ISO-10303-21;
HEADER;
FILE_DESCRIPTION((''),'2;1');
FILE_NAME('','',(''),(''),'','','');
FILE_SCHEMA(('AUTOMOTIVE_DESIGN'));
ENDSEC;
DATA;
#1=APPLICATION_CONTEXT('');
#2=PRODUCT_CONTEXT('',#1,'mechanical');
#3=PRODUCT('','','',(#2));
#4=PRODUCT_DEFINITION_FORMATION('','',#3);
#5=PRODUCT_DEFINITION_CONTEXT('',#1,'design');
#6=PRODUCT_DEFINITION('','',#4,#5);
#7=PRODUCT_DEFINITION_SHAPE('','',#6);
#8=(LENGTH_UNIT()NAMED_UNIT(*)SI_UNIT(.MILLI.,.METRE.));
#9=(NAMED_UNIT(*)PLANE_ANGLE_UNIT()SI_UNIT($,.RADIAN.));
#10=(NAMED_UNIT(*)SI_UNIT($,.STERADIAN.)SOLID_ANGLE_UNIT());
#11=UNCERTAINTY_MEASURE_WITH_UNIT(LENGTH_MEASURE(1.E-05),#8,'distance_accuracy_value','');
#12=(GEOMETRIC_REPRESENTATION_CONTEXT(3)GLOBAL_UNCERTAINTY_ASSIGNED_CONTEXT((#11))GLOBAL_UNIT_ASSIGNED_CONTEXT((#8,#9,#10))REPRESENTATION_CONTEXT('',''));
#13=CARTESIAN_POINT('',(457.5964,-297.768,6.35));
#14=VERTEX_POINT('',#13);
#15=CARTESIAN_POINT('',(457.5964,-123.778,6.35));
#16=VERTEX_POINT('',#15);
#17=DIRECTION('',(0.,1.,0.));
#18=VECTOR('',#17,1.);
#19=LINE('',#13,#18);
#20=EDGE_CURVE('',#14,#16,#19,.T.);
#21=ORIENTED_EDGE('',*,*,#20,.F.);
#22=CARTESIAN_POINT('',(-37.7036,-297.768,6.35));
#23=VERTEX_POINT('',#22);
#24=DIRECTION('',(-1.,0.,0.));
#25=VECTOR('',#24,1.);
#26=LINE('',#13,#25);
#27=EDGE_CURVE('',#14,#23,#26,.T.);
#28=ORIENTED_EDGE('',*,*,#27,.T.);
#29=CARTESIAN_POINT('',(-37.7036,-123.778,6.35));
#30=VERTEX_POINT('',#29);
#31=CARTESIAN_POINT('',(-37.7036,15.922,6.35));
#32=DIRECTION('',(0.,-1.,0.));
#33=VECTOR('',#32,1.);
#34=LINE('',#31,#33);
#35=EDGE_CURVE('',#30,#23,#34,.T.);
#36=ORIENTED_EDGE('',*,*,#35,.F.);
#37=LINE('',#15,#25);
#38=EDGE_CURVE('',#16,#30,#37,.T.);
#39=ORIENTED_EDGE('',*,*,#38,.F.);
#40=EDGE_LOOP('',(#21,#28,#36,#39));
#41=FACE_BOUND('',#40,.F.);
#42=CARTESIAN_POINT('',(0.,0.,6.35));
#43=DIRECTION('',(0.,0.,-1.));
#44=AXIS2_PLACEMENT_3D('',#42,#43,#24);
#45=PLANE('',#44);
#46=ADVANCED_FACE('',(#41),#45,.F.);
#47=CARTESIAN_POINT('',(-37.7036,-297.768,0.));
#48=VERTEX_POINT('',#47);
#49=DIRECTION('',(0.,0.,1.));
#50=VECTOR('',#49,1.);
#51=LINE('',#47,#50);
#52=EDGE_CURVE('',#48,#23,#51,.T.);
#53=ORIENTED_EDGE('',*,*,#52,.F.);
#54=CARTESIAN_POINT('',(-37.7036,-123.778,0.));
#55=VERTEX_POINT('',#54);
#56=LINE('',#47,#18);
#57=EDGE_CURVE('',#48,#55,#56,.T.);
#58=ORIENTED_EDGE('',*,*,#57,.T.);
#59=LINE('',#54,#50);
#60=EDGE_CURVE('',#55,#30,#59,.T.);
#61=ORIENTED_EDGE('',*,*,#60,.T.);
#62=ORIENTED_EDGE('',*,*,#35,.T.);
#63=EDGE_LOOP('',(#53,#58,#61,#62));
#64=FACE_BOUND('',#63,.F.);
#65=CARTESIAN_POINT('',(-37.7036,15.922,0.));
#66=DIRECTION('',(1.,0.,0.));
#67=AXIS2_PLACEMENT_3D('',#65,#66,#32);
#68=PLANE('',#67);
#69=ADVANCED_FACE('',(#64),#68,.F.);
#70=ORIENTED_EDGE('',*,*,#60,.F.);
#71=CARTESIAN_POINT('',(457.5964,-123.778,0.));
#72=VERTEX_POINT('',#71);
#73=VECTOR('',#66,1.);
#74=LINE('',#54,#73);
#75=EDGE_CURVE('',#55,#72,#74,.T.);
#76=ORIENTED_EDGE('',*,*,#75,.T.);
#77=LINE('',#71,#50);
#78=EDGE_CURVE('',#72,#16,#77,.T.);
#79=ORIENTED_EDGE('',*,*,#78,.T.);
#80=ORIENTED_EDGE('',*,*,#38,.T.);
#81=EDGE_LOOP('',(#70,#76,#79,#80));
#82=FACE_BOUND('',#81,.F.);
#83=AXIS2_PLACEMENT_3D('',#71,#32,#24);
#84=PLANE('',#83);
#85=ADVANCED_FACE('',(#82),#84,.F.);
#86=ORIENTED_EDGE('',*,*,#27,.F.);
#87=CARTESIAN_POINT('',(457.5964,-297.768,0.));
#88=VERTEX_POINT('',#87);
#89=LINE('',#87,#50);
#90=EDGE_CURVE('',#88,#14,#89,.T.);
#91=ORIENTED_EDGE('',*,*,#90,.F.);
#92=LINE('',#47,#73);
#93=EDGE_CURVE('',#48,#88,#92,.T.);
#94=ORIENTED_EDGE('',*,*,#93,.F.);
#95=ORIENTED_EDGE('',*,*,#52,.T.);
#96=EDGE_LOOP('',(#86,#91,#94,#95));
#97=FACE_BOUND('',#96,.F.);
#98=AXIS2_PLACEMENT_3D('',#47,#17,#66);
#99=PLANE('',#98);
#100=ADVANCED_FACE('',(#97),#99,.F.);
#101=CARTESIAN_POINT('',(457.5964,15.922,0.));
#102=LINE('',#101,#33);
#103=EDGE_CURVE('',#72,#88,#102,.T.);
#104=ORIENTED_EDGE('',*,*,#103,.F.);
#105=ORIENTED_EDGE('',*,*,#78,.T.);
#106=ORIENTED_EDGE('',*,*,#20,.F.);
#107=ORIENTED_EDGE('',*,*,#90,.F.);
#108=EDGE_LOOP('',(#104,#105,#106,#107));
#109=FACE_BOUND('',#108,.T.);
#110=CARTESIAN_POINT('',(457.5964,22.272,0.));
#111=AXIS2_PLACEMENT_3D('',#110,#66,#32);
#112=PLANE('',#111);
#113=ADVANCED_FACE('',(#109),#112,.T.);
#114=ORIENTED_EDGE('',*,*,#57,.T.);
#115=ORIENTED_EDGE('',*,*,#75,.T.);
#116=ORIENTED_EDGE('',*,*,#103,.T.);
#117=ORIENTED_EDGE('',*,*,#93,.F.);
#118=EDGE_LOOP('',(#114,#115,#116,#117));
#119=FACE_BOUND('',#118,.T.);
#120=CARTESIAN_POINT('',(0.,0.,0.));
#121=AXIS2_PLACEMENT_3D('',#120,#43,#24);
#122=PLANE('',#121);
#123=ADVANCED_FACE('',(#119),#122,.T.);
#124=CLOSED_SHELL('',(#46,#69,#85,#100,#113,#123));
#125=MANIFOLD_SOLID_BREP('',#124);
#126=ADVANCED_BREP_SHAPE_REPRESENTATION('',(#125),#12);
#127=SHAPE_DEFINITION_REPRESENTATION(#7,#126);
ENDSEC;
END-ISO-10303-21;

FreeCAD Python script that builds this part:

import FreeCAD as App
import Part
import Sketcher
from FreeCAD import Vector
Q = App.Units.Quantity

doc = App.newDocument("Part")
body = doc.addObject("PartDesign::Body", "Body")

# Sketch on XY plane
sketch1 = doc.addObject("Sketcher::SketchObject", "Sketch")
body.addObject(sketch1)
sketch1.AttachmentSupport = (doc.XY_Plane, [""])
sketch1.MapMode = "FlatFace"
sketch1.addGeometry(Part.LineSegment(Vector(458, 22, 0), Vector(-38, 22, 0)), False)
sketch1.addGeometry(Part.LineSegment(Vector(-38, 22, 0), Vector(-38, -304, 0)), False)
sketch1.addGeometry(Part.LineSegment(Vector(-38, -304, 0), Vector(458, -304, 0)), False)
sketch1.addGeometry(Part.LineSegment(Vector(458, -304, 0), Vector(458, 22, 0)), False)
sketch1.addConstraint(Sketcher.Constraint("Coincident", 0, 2, 1, 1))
sketch1.addConstraint(Sketcher.Constraint("Coincident", 1, 2, 2, 1))
sketch1.addConstraint(Sketcher.Constraint("Coincident", 2, 2, 3, 1))
sketch1.addConstraint(Sketcher.Constraint("Coincident", 3, 2, 0, 1))
sketch1.addConstraint(Sketcher.Constraint("Horizontal", 0))
sketch1.addConstraint(Sketcher.Constraint("Vertical", 1))
sketch1.addConstraint(Sketcher.Constraint("Horizontal", 2))
sketch1.addConstraint(Sketcher.Constraint("Vertical", 3))
sketch1.addConstraint(Sketcher.Constraint("DistanceX", 0, 2, 0, 1, Q("19.5 in")))
sketch1.addConstraint(Sketcher.Constraint("DistanceY", 1, 2, 1, 1, Q("12.85 in")))
sketch1.addConstraint(Sketcher.Constraint("DistanceX", 0, 2, -1, 1, Q("1.4844 in")))
sketch1.addConstraint(Sketcher.Constraint("DistanceY", -1, 1, 0, 2, Q("22.272 mm")))
pad1 = doc.addObject("PartDesign::Pad", "Pad")
body.addObject(pad1)
pad1.Profile = sketch1
pad1.Length = Q("0.25 in")

# Sketch on XY plane
sketch2 = doc.addObject("Sketcher::SketchObject", "Sketch001")
body.addObject(sketch2)
sketch2.AttachmentSupport = (doc.XY_Plane, [""])
sketch2.MapMode = "FlatFace"
sketch2.AttachmentOffset = App.Placement(Vector(0, 0, 0.25 * 25.4), App.Rotation())
sketch2.addGeometry(Part.LineSegment(Vector(-19, 22, 0), Vector(-38, 22, 0)), False)
sketch2.addGeometry(Part.LineSegment(Vector(-38, 22, 0), Vector(-38, 16, 0)), False)
sketch2.addGeometry(Part.LineSegment(Vector(-38, 16, 0), Vector(-19, 16, 0)), False)
sketch2.addGeometry(Part.LineSegment(Vector(-19, 16, 0), Vector(-19, 22, 0)), False)
sketch2.addGeometry(Part.LineSegment(Vector(83, 22, 0), Vector(32, 22, 0)), False)
sketch2.addGeometry(Part.LineSegment(Vector(32, 22, 0), Vector(32, 16, 0)), False)
sketch2.addGeometry(Part.LineSegment(Vector(32, 16, 0), Vector(83, 16, 0)), False)
sketch2.addGeometry(Part.LineSegment(Vector(83, 16, 0), Vector(83, 22, 0)), False)
sketch2.addGeometry(Part.LineSegment(Vector(185, 22, 0), Vector(134, 22, 0)), False)
sketch2.addGeometry(Part.LineSegment(Vector(134, 22, 0), Vector(134, 16, 0)), False)
sketch2.addGeometry(Part.LineSegment(Vector(134, 16, 0), Vector(185, 16, 0)), False)
sketch2.addGeometry(Part.LineSegment(Vector(185, 16, 0), Vector(185, 22, 0)), False)
sketch2.addGeometry(Part.LineSegment(Vector(286, 22, 0), Vector(235, 22, 0)), False)
sketch2.addGeometry(Part.LineSegment(Vector(235, 22, 0), Vector(235, 16, 0)), False)
sketch2.addGeometry(Part.LineSegment(Vector(235, 16, 0), Vector(286, 16, 0)), False)
sketch2.addGeometry(Part.LineSegment(Vector(286, 16, 0), Vector(286, 22, 0)), False)
sketch2.addGeometry(Part.LineSegment(Vector(388, 22, 0), Vector(337, 22, 0)), False)
sketch2.addGeometry(Part.LineSegment(Vector(337, 22, 0), Vector(337, 16, 0)), False)
sketch2.addGeometry(Part.LineSegment(Vector(337, 16, 0), Vector(388, 16, 0)), False)
sketch2.addGeometry(Part.LineSegment(Vector(388, 16, 0), Vector(388, 22, 0)), False)
sketch2.addGeometry(Part.LineSegment(Vector(458, 22, 0), Vector(439, 22, 0)), False)
sketch2.addGeometry(Part.LineSegment(Vector(439, 22, 0), Vector(439, 16, 0)), False)
sketch2.addGeometry(Part.LineSegment(Vector(439, 16, 0), Vector(458, 16, 0)), False)
sketch2.addGeometry(Part.LineSegment(Vector(458, 16, 0), Vector(458, 22, 0)), False)
sketch2.addConstraint(Sketcher.Constraint("Coincident", 0, 2, 1, 1))
sketch2.addConstraint(Sketcher.Constraint("Coincident", 1, 2, 2, 1))
sketch2.addConstraint(Sketcher.Constraint("Coincident", 2, 2, 3, 1))
sketch2.addConstraint(Sketcher.Constraint("Coincident", 3, 2, 0, 1))
sketch2.addConstraint(Sketcher.Constraint("Coincident", 4, 2, 5, 1))
sketch2.addConstraint(Sketcher.Constraint("Coincident", 5, 2, 6, 1))
sketch2.addConstraint(Sketcher.Constraint("Coincident", 6, 2, 7, 1))
sketch2.addConstraint(Sketcher.Constraint("Coincident", 7, 2, 4, 1))
sketch2.addConstraint(Sketcher.Constraint("Coincident", 8, 2, 9, 1))
sketch2.addConstraint(Sketcher.Constraint("Coincident", 9, 2, 10, 1))
sketch2.addConstraint(Sketcher.Constraint("Coincident", 10, 2, 11, 1))
sketch2.addConstraint(Sketcher.Constraint("Coincident", 11, 2, 8, 1))
sketch2.addConstraint(Sketcher.Constraint("Coincident", 12, 2, 13, 1))
sketch2.addConstraint(Sketcher.Constraint("Coincident", 13, 2, 14, 1))
sketch2.addConstraint(Sketcher.Constraint("Coincident", 14, 2, 15, 1))
sketch2.addConstraint(Sketcher.Constraint("Coincident", 15, 2, 12, 1))
sketch2.addConstraint(Sketcher.Constraint("Coincident", 16, 2, 17, 1))
sketch2.addConstraint(Sketcher.Constraint("Coincident", 17, 2, 18, 1))
sketch2.addConstraint(Sketcher.Constraint("Coincident", 18, 2, 19, 1))
sketch2.addConstraint(Sketcher.Constraint("Coincident", 19, 2, 16, 1))
sketch2.addConstraint(Sketcher.Constraint("Coincident", 20, 2, 21, 1))
sketch2.addConstraint(Sketcher.Constraint("Coincident", 21, 2, 22, 1))
sketch2.addConstraint(Sketcher.Constraint("Coincident", 22, 2, 23, 1))
sketch2.addConstraint(Sketcher.Constraint("Coincident", 23, 2, 20, 1))
sketch2.addConstraint(Sketcher.Constraint("Horizontal", 0))
sketch2.addConstraint(Sketcher.Constraint("Vertical", 1))
sketch2.addConstraint(Sketcher.Constraint("Horizontal", 2))
sketch2.addConstraint(Sketcher.Constraint("Vertical", 3))
sketch2.addConstraint(Sketcher.Constraint("Horizontal", 4))
sketch2.addConstraint(Sketcher.Constraint("Vertical", 5))
sketch2.addConstraint(Sketcher.Constraint("Horizontal", 6))
sketch2.addConstraint(Sketcher.Constraint("Vertical", 7))
sketch2.addConstraint(Sketcher.Constraint("Horizontal", 8))
sketch2.addConstraint(Sketcher.Constraint("Vertical", 9))
sketch2.addConstraint(Sketcher.Constraint("Horizontal", 10))
sketch2.addConstraint(Sketcher.Constraint("Vertical", 11))
sketch2.addConstraint(Sketcher.Constraint("Horizontal", 12))
sketch2.addConstraint(Sketcher.Constraint("Vertical", 13))
sketch2.addConstraint(Sketcher.Constraint("Horizontal", 14))
sketch2.addConstraint(Sketcher.Constraint("Vertical", 15))
sketch2.addConstraint(Sketcher.Constraint("Horizontal", 16))
sketch2.addConstraint(Sketcher.Constraint("Vertical", 17))
sketch2.addConstraint(Sketcher.Constraint("Horizontal", 18))
sketch2.addConstraint(Sketcher.Constraint("Vertical", 19))
sketch2.addConstraint(Sketcher.Constraint("Horizontal", 20))
sketch2.addConstraint(Sketcher.Constraint("Vertical", 21))
sketch2.addConstraint(Sketcher.Constraint("Horizontal", 22))
sketch2.addConstraint(Sketcher.Constraint("Vertical", 23))
sketch2.addConstraint(Sketcher.Constraint("Horizontal", 3, 2, 4, 2))
sketch2.addConstraint(Sketcher.Constraint("Horizontal", 2, 2, 5, 2))
sketch2.addConstraint(Sketcher.Constraint("Horizontal", 7, 2, 8, 2))
sketch2.addConstraint(Sketcher.Constraint("Horizontal", 6, 2, 9, 2))
sketch2.addConstraint(Sketcher.Constraint("Horizontal", 11, 2, 12, 2))
sketch2.addConstraint(Sketcher.Constraint("Horizontal", 10, 2, 13, 2))
sketch2.addConstraint(Sketcher.Constraint("Horizontal", 15, 2, 16, 2))
sketch2.addConstraint(Sketcher.Constraint("Horizontal", 14, 2, 17, 2))
sketch2.addConstraint(Sketcher.Constraint("Horizontal", 19, 2, 20, 2))
sketch2.addConstraint(Sketcher.Constraint("Horizontal", 18, 2, 21, 2))
sketch2.addConstraint(Sketcher.Constraint("Equal", 6, 8))
sketch2.addConstraint(Sketcher.Constraint("Equal", 10, 12))
sketch2.addConstraint(Sketcher.Constraint("Equal", 14, 16))
sketch2.addConstraint(Sketcher.Constraint("Equal", 2, 20))
sketch2.addConstraint(Sketcher.Constraint("DistanceX", 4, 2, 4, 1, Q("2 in")))
sketch2.addConstraint(Sketcher.Constraint("DistanceX", 3, 2, 4, 2, Q("2 in")))
sketch2.addConstraint(Sketcher.Constraint("DistanceX", 7, 2, 8, 2, Q("2 in")))
sketch2.addConstraint(Sketcher.Constraint("DistanceX", 11, 2, 12, 2, Q("2 in")))
sketch2.addConstraint(Sketcher.Constraint("DistanceX", 15, 2, 16, 2, Q("2 in")))
sketch2.addConstraint(Sketcher.Constraint("DistanceX", 19, 2, 20, 2, Q("2 in")))
sketch2.addConstraint(Sketcher.Constraint("DistanceX", 0, 2, 0, 1, Q("0.75 in")))
sketch2.addConstraint(Sketcher.Constraint("DistanceY", 1, 2, 1, 1, Q("0.25 in")))
sketch2.addConstraint(Sketcher.Constraint("DistanceX", 0, 2, -1, 1, Q("1.4844 in")))
sketch2.addConstraint(Sketcher.Constraint("DistanceY", -1, 1, 0, 2, Q("22.272 mm")))
pocket1 = doc.addObject("PartDesign::Pocket", "Pocket")
body.addObject(pocket1)
pocket1.Profile = sketch2
pocket1.Length = Q("0.25 in")

# Sketch on XY plane
sketch3 = doc.addObject("Sketcher::SketchObject", "Sketch002")
body.addObject(sketch3)
sketch3.AttachmentSupport = (doc.XY_Plane, [""])
sketch3.MapMode = "FlatFace"
sketch3.AttachmentOffset = App.Placement(Vector(0, 0, 0.25 * 25.4), App.Rotation())
sketch3.addGeometry(Part.LineSegment(Vector(439, -304, 0), Vector(458, -304, 0)), False)
sketch3.addGeometry(Part.LineSegment(Vector(458, -304, 0), Vector(458, -298, 0)), False)
sketch3.addGeometry(Part.LineSegment(Vector(458, -298, 0), Vector(439, -298, 0)), False)
sketch3.addGeometry(Part.LineSegment(Vector(439, -298, 0), Vector(439, -304, 0)), False)
sketch3.addGeometry(Part.LineSegment(Vector(337, -304, 0), Vector(388, -304, 0)), False)
sketch3.addGeometry(Part.LineSegment(Vector(388, -304, 0), Vector(388, -298, 0)), False)
sketch3.addGeometry(Part.LineSegment(Vector(388, -298, 0), Vector(337, -298, 0)), False)
sketch3.addGeometry(Part.LineSegment(Vector(337, -298, 0), Vector(337, -304, 0)), False)
sketch3.addGeometry(Part.LineSegment(Vector(134, -304, 0), Vector(185, -304, 0)), False)
sketch3.addGeometry(Part.LineSegment(Vector(185, -304, 0), Vector(185, -298, 0)), False)
sketch3.addGeometry(Part.LineSegment(Vector(185, -298, 0), Vector(134, -298, 0)), False)
sketch3.addGeometry(Part.LineSegment(Vector(134, -298, 0), Vector(134, -304, 0)), False)
sketch3.addGeometry(Part.LineSegment(Vector(32, -304, 0), Vector(83, -304, 0)), False)
sketch3.addGeometry(Part.LineSegment(Vector(83, -304, 0), Vector(83, -298, 0)), False)
sketch3.addGeometry(Part.LineSegment(Vector(83, -298, 0), Vector(32, -298, 0)), False)
sketch3.addGeometry(Part.LineSegment(Vector(32, -298, 0), Vector(32, -304, 0)), False)
sketch3.addGeometry(Part.LineSegment(Vector(-38, -304, 0), Vector(-19, -304, 0)), False)
sketch3.addGeometry(Part.LineSegment(Vector(-19, -304, 0), Vector(-19, -298, 0)), False)
sketch3.addGeometry(Part.LineSegment(Vector(-19, -298, 0), Vector(-38, -298, 0)), False)
sketch3.addGeometry(Part.LineSegment(Vector(-38, -298, 0), Vector(-38, -304, 0)), False)
sketch3.addConstraint(Sketcher.Constraint("Coincident", 0, 2, 1, 1))
sketch3.addConstraint(Sketcher.Constraint("Coincident", 1, 2, 2, 1))
sketch3.addConstraint(Sketcher.Constraint("Coincident", 2, 2, 3, 1))
sketch3.addConstraint(Sketcher.Constraint("Coincident", 3, 2, 0, 1))
sketch3.addConstraint(Sketcher.Constraint("Coincident", 4, 2, 5, 1))
sketch3.addConstraint(Sketcher.Constraint("Coincident", 5, 2, 6, 1))
sketch3.addConstraint(Sketcher.Constraint("Coincident", 6, 2, 7, 1))
sketch3.addConstraint(Sketcher.Constraint("Coincident", 7, 2, 4, 1))
sketch3.addConstraint(Sketcher.Constraint("Coincident", 8, 2, 9, 1))
sketch3.addConstraint(Sketcher.Constraint("Coincident", 9, 2, 10, 1))
sketch3.addConstraint(Sketcher.Constraint("Coincident", 10, 2, 11, 1))
sketch3.addConstraint(Sketcher.Constraint("Coincident", 11, 2, 8, 1))
sketch3.addConstraint(Sketcher.Constraint("Coincident", 12, 2, 13, 1))
sketch3.addConstraint(Sketcher.Constraint("Coincident", 13, 2, 14, 1))
sketch3.addConstraint(Sketcher.Constraint("Coincident", 14, 2, 15, 1))
sketch3.addConstraint(Sketcher.Constraint("Coincident", 15, 2, 12, 1))
sketch3.addConstraint(Sketcher.Constraint("Coincident", 16, 2, 17, 1))
sketch3.addConstraint(Sketcher.Constraint("Coincident", 17, 2, 18, 1))
sketch3.addConstraint(Sketcher.Constraint("Coincident", 18, 2, 19, 1))
sketch3.addConstraint(Sketcher.Constraint("Coincident", 19, 2, 16, 1))
sketch3.addConstraint(Sketcher.Constraint("Horizontal", 0))
sketch3.addConstraint(Sketcher.Constraint("Vertical", 1))
sketch3.addConstraint(Sketcher.Constraint("Horizontal", 2))
sketch3.addConstraint(Sketcher.Constraint("Vertical", 3))
sketch3.addConstraint(Sketcher.Constraint("Horizontal", 4))
sketch3.addConstraint(Sketcher.Constraint("Vertical", 5))
sketch3.addConstraint(Sketcher.Constraint("Horizontal", 6))
sketch3.addConstraint(Sketcher.Constraint("Vertical", 7))
sketch3.addConstraint(Sketcher.Constraint("Horizontal", 8))
sketch3.addConstraint(Sketcher.Constraint("Vertical", 9))
sketch3.addConstraint(Sketcher.Constraint("Horizontal", 10))
sketch3.addConstraint(Sketcher.Constraint("Vertical", 11))
sketch3.addConstraint(Sketcher.Constraint("Horizontal", 12))
sketch3.addConstraint(Sketcher.Constraint("Vertical", 13))
sketch3.addConstraint(Sketcher.Constraint("Horizontal", 14))
sketch3.addConstraint(Sketcher.Constraint("Vertical", 15))
sketch3.addConstraint(Sketcher.Constraint("Horizontal", 16))
sketch3.addConstraint(Sketcher.Constraint("Vertical", 17))
sketch3.addConstraint(Sketcher.Constraint("Horizontal", 18))
sketch3.addConstraint(Sketcher.Constraint("Vertical", 19))
sketch3.addConstraint(Sketcher.Constraint("Horizontal", 3, 2, 4, 2))
sketch3.addConstraint(Sketcher.Constraint("Horizontal", 2, 2, 5, 2))
sketch3.addConstraint(Sketcher.Constraint("Horizontal", 7, 2, 8, 2))
sketch3.addConstraint(Sketcher.Constraint("Horizontal", 6, 2, 9, 2))
sketch3.addConstraint(Sketcher.Constraint("Horizontal", 11, 2, 12, 2))
sketch3.addConstraint(Sketcher.Constraint("Horizontal", 10, 2, 13, 2))
sketch3.addConstraint(Sketcher.Constraint("Horizontal", 15, 2, 16, 2))
sketch3.addConstraint(Sketcher.Constraint("Horizontal", 14, 2, 17, 2))
sketch3.addConstraint(Sketcher.Constraint("Equal", 6, 8))
sketch3.addConstraint(Sketcher.Constraint("Equal", 10, 12))
sketch3.addConstraint(Sketcher.Constraint("Equal", 2, 16))
sketch3.addConstraint(Sketcher.Constraint("DistanceX", 0, 1, 0, 2, Q("0.75 in")))
sketch3.addConstraint(Sketcher.Constraint("DistanceY", 1, 1, 1, 2, Q("0.25 in")))
sketch3.addConstraint(Sketcher.Constraint("DistanceX", 4, 1, 4, 2, Q("2 in")))
sketch3.addConstraint(Sketcher.Constraint("DistanceX", 4, 2, 3, 2, Q("2 in")))
sketch3.addConstraint(Sketcher.Constraint("DistanceX", 8, 2, 7, 2, Q("6 in")))
sketch3.addConstraint(Sketcher.Constraint("DistanceX", 12, 2, 11, 2, Q("2 in")))
sketch3.addConstraint(Sketcher.Constraint("DistanceX", 16, 2, 15, 2, Q("2 in")))
sketch3.addConstraint(Sketcher.Constraint("DistanceX", -1, 1, 0, 2, Q("18.0156 in")))
sketch3.addConstraint(Sketcher.Constraint("DistanceY", 0, 2, -1, 1, Q("304.118 mm")))
pocket2 = doc.addObject("PartDesign::Pocket", "Pocket001")
body.addObject(pocket2)
pocket2.Profile = sketch3
pocket2.Length = Q("0.25 in")

# Sketch on XY plane
sketch4 = doc.addObject("Sketcher::SketchObject", "Sketch003")
body.addObject(sketch4)
sketch4.AttachmentSupport = (doc.XY_Plane, [""])
sketch4.MapMode = "FlatFace"
sketch4.AttachmentOffset = App.Placement(Vector(0, 0, 0.25 * 25.4), App.Rotation())
sketch4.addGeometry(Part.LineSegment(Vector(235, -304, 0), Vector(286, -304, 0)), False)
sketch4.addGeometry(Part.LineSegment(Vector(286, -304, 0), Vector(286, -298, 0)), False)
sketch4.addGeometry(Part.LineSegment(Vector(286, -298, 0), Vector(235, -298, 0)), False)
sketch4.addGeometry(Part.LineSegment(Vector(235, -298, 0), Vector(235, -304, 0)), False)
sketch4.addConstraint(Sketcher.Constraint("Coincident", 0, 2, 1, 1))
sketch4.addConstraint(Sketcher.Constraint("Coincident", 1, 2, 2, 1))
sketch4.addConstraint(Sketcher.Constraint("Coincident", 2, 2, 3, 1))
sketch4.addConstraint(Sketcher.Constraint("Coincident", 3, 2, 0, 1))
sketch4.addConstraint(Sketcher.Constraint("Horizontal", 0))
sketch4.addConstraint(Sketcher.Constraint("Vertical", 1))
sketch4.addConstraint(Sketcher.Constraint("Horizontal", 2))
sketch4.addConstraint(Sketcher.Constraint("Vertical", 3))
sketch4.addConstraint(Sketcher.Constraint("DistanceX", 0, 1, 0, 2, Q("2 in")))
sketch4.addConstraint(Sketcher.Constraint("DistanceY", 1, 1, 1, 2, Q("0.25 in")))
sketch4.addConstraint(Sketcher.Constraint("DistanceX", -1, 1, 0, 2, Q("11.2656 in")))
sketch4.addConstraint(Sketcher.Constraint("DistanceY", 0, 2, -1, 1, Q("304.118 mm")))
pocket3 = doc.addObject("PartDesign::Pocket", "Pocket002")
body.addObject(pocket3)
pocket3.Profile = sketch4
pocket3.Length = Q("0.25 in")

# Sketch on XY plane
sketch5 = doc.addObject("Sketcher::SketchObject", "Sketch004")
body.addObject(sketch5)
sketch5.AttachmentSupport = (doc.XY_Plane, [""])
sketch5.MapMode = "FlatFace"
sketch5.AttachmentOffset = App.Placement(Vector(0, 0, 0.25 * 25.4), App.Rotation())
sketch5.addGeometry(Part.LineSegment(Vector(458, -14, 0), Vector(458, 16, 0)), False)
sketch5.addGeometry(Part.LineSegment(Vector(458, 16, 0), Vector(451, 16, 0)), False)
sketch5.addGeometry(Part.LineSegment(Vector(451, 16, 0), Vector(451, -14, 0)), False)
sketch5.addGeometry(Part.LineSegment(Vector(451, -14, 0), Vector(458, -14, 0)), False)
sketch5.addGeometry(Part.LineSegment(Vector(458, -217, 0), Vector(458, -166, 0)), False)
sketch5.addGeometry(Part.LineSegment(Vector(458, -166, 0), Vector(451, -166, 0)), False)
sketch5.addGeometry(Part.LineSegment(Vector(451, -166, 0), Vector(451, -217, 0)), False)
sketch5.addGeometry(Part.LineSegment(Vector(451, -217, 0), Vector(458, -217, 0)), False)
sketch5.addGeometry(Part.LineSegment(Vector(458, -298, 0), Vector(458, -268, 0)), False)
sketch5.addGeometry(Part.LineSegment(Vector(458, -268, 0), Vector(451, -268, 0)), False)
sketch5.addGeometry(Part.LineSegment(Vector(451, -268, 0), Vector(451, -298, 0)), False)
sketch5.addGeometry(Part.LineSegment(Vector(451, -298, 0), Vector(458, -298, 0)), False)
sketch5.addGeometry(Part.LineSegment(Vector(-38, 16, 0), Vector(-38, -14, 0)), False)
sketch5.addGeometry(Part.LineSegment(Vector(-38, -14, 0), Vector(-31, -14, 0)), False)
sketch5.addGeometry(Part.LineSegment(Vector(-31, -14, 0), Vector(-31, 16, 0)), False)
sketch5.addGeometry(Part.LineSegment(Vector(-31, 16, 0), Vector(-38, 16, 0)), False)
sketch5.addGeometry(Part.LineSegment(Vector(-38, -65, 0), Vector(-38, -116, 0)), False)
sketch5.addGeometry(Part.LineSegment(Vector(-38, -116, 0), Vector(-31, -116, 0)), False)
sketch5.addGeometry(Part.LineSegment(Vector(-31, -116, 0), Vector(-31, -65, 0)), False)
sketch5.addGeometry(Part.LineSegment(Vector(-31, -65, 0), Vector(-38, -65, 0)), False)
sketch5.addGeometry(Part.LineSegment(Vector(-38, -166, 0), Vector(-38, -217, 0)), False)
sketch5.addGeometry(Part.LineSegment(Vector(-38, -217, 0), Vector(-31, -217, 0)), False)
sketch5.addGeometry(Part.LineSegment(Vector(-31, -217, 0), Vector(-31, -166, 0)), False)
sketch5.addGeometry(Part.LineSegment(Vector(-31, -166, 0), Vector(-38, -166, 0)), False)
sketch5.addGeometry(Part.LineSegment(Vector(-38, -268, 0), Vector(-38, -298, 0)), False)
sketch5.addGeometry(Part.LineSegment(Vector(-38, -298, 0), Vector(-31, -298, 0)), False)
sketch5.addGeometry(Part.LineSegment(Vector(-31, -298, 0), Vector(-31, -268, 0)), False)
sketch5.addGeometry(Part.LineSegment(Vector(-31, -268, 0), Vector(-38, -268, 0)), False)
sketch5.addConstraint(Sketcher.Constraint("Coincident", 0, 2, 1, 1))
sketch5.addConstraint(Sketcher.Constraint("Coincident", 1, 2, 2, 1))
sketch5.addConstraint(Sketcher.Constraint("Coincident", 2, 2, 3, 1))
sketch5.addConstraint(Sketcher.Constraint("Coincident", 3, 2, 0, 1))
sketch5.addConstraint(Sketcher.Constraint("Coincident", 4, 2, 5, 1))
sketch5.addConstraint(Sketcher.Constraint("Coincident", 5, 2, 6, 1))
sketch5.addConstraint(Sketcher.Constraint("Coincident", 6, 2, 7, 1))
sketch5.addConstraint(Sketcher.Constraint("Coincident", 7, 2, 4, 1))
sketch5.addConstraint(Sketcher.Constraint("Coincident", 8, 2, 9, 1))
sketch5.addConstraint(Sketcher.Constraint("Coincident", 9, 2, 10, 1))
sketch5.addConstraint(Sketcher.Constraint("Coincident", 10, 2, 11, 1))
sketch5.addConstraint(Sketcher.Constraint("Coincident", 11, 2, 8, 1))
sketch5.addConstraint(Sketcher.Constraint("Coincident", 12, 2, 13, 1))
sketch5.addConstraint(Sketcher.Constraint("Coincident", 13, 2, 14, 1))
sketch5.addConstraint(Sketcher.Constraint("Coincident", 14, 2, 15, 1))
sketch5.addConstraint(Sketcher.Constraint("Coincident", 15, 2, 12, 1))
sketch5.addConstraint(Sketcher.Constraint("Coincident", 16, 2, 17, 1))
sketch5.addConstraint(Sketcher.Constraint("Coincident", 17, 2, 18, 1))
sketch5.addConstraint(Sketcher.Constraint("Coincident", 18, 2, 19, 1))
sketch5.addConstraint(Sketcher.Constraint("Coincident", 19, 2, 16, 1))
sketch5.addConstraint(Sketcher.Constraint("Coincident", 20, 2, 21, 1))
sketch5.addConstraint(Sketcher.Constraint("Coincident", 21, 2, 22, 1))
sketch5.addConstraint(Sketcher.Constraint("Coincident", 22, 2, 23, 1))
sketch5.addConstraint(Sketcher.Constraint("Coincident", 23, 2, 20, 1))
sketch5.addConstraint(Sketcher.Constraint("Coincident", 24, 2, 25, 1))
sketch5.addConstraint(Sketcher.Constraint("Coincident", 25, 2, 26, 1))
sketch5.addConstraint(Sketcher.Constraint("Coincident", 26, 2, 27, 1))
sketch5.addConstraint(Sketcher.Constraint("Coincident", 27, 2, 24, 1))
sketch5.addConstraint(Sketcher.Constraint("Vertical", 0))
sketch5.addConstraint(Sketcher.Constraint("Horizontal", 1))
sketch5.addConstraint(Sketcher.Constraint("Vertical", 2))
sketch5.addConstraint(Sketcher.Constraint("Horizontal", 3))
sketch5.addConstraint(Sketcher.Constraint("Vertical", 4))
sketch5.addConstraint(Sketcher.Constraint("Horizontal", 5))
sketch5.addConstraint(Sketcher.Constraint("Vertical", 6))
sketch5.addConstraint(Sketcher.Constraint("Horizontal", 7))
sketch5.addConstraint(Sketcher.Constraint("Vertical", 8))
sketch5.addConstraint(Sketcher.Constraint("Horizontal", 9))
sketch5.addConstraint(Sketcher.Constraint("Vertical", 10))
sketch5.addConstraint(Sketcher.Constraint("Horizontal", 11))
sketch5.addConstraint(Sketcher.Constraint("Vertical", 12))
sketch5.addConstraint(Sketcher.Constraint("Horizontal", 13))
sketch5.addConstraint(Sketcher.Constraint("Vertical", 14))
sketch5.addConstraint(Sketcher.Constraint("Horizontal", 15))
sketch5.addConstraint(Sketcher.Constraint("Vertical", 16))
sketch5.addConstraint(Sketcher.Constraint("Horizontal", 17))
sketch5.addConstraint(Sketcher.Constraint("Vertical", 18))
sketch5.addConstraint(Sketcher.Constraint("Horizontal", 19))
sketch5.addConstraint(Sketcher.Constraint("Vertical", 20))
sketch5.addConstraint(Sketcher.Constraint("Horizontal", 21))
sketch5.addConstraint(Sketcher.Constraint("Vertical", 22))
sketch5.addConstraint(Sketcher.Constraint("Horizontal", 23))
sketch5.addConstraint(Sketcher.Constraint("Vertical", 24))
sketch5.addConstraint(Sketcher.Constraint("Horizontal", 25))
sketch5.addConstraint(Sketcher.Constraint("Vertical", 26))
sketch5.addConstraint(Sketcher.Constraint("Horizontal", 27))
sketch5.addConstraint(Sketcher.Constraint("Horizontal", 3, 2, 12, 2))
sketch5.addConstraint(Sketcher.Constraint("Horizontal", 1, 2, 14, 2))
sketch5.addConstraint(Sketcher.Constraint("Horizontal", 7, 2, 20, 2))
sketch5.addConstraint(Sketcher.Constraint("Horizontal", 5, 2, 22, 2))
sketch5.addConstraint(Sketcher.Constraint("Horizontal", 11, 2, 24, 2))
sketch5.addConstraint(Sketcher.Constraint("Horizontal", 9, 2, 26, 2))
sketch5.addConstraint(Sketcher.Constraint("Vertical", 3, 2, 4, 2))
sketch5.addConstraint(Sketcher.Constraint("Vertical", 2, 2, 5, 2))
sketch5.addConstraint(Sketcher.Constraint("Vertical", 7, 2, 8, 2))
sketch5.addConstraint(Sketcher.Constraint("Vertical", 6, 2, 9, 2))
sketch5.addConstraint(Sketcher.Constraint("Vertical", 15, 2, 16, 2))
sketch5.addConstraint(Sketcher.Constraint("Vertical", 14, 2, 17, 2))
sketch5.addConstraint(Sketcher.Constraint("Vertical", 19, 2, 20, 2))
sketch5.addConstraint(Sketcher.Constraint("Vertical", 18, 2, 21, 2))
sketch5.addConstraint(Sketcher.Constraint("Vertical", 23, 2, 24, 2))
sketch5.addConstraint(Sketcher.Constraint("Vertical", 22, 2, 25, 2))
sketch5.addConstraint(Sketcher.Constraint("Equal", 11, 13))
sketch5.addConstraint(Sketcher.Constraint("Equal", 2, 8))
sketch5.addConstraint(Sketcher.Constraint("Equal", 6, 16))
sketch5.addConstraint(Sketcher.Constraint("DistanceY", 4, 1, 4, 2, Q("2 in")))
sketch5.addConstraint(Sketcher.Constraint("DistanceY", 8, 2, 7, 2, Q("2 in")))
sketch5.addConstraint(Sketcher.Constraint("DistanceY", 5, 2, 16, 2, Q("2 in")))
sketch5.addConstraint(Sketcher.Constraint("DistanceY", 18, 2, 13, 2, Q("2 in")))
sketch5.addConstraint(Sketcher.Constraint("DistanceX", 1, 2, 1, 1, Q("0.25 in")))
sketch5.addConstraint(Sketcher.Constraint("DistanceY", 4, 2, 0, 2, Q("7.175 in")))
sketch5.addConstraint(Sketcher.Constraint("DistanceX", 13, 2, 2, 2, Q("19 in")))
sketch5.addConstraint(Sketcher.Constraint("DistanceX", -1, 1, 0, 2, Q("18.0156 in")))
sketch5.addConstraint(Sketcher.Constraint("DistanceY", -1, 1, 0, 2, Q("15.922 mm")))
pocket4 = doc.addObject("PartDesign::Pocket", "Pocket003")
body.addObject(pocket4)
pocket4.Profile = sketch5
pocket4.Length = Q("0.25 in")

# Sketch on XY plane
sketch6 = doc.addObject("Sketcher::SketchObject", "Sketch005")
body.addObject(sketch6)
sketch6.AttachmentSupport = (doc.XY_Plane, [""])
sketch6.MapMode = "FlatFace"
sketch6.AttachmentOffset = App.Placement(Vector(0, 0, 0.25 * 25.4), App.Rotation())
sketch6.addGeometry(Part.LineSegment(Vector(458, -116, 0), Vector(458, -65, 0)), False)
sketch6.addGeometry(Part.LineSegment(Vector(458, -65, 0), Vector(451, -65, 0)), False)
sketch6.addGeometry(Part.LineSegment(Vector(451, -65, 0), Vector(451, -116, 0)), False)
sketch6.addGeometry(Part.LineSegment(Vector(451, -116, 0), Vector(458, -116, 0)), False)
sketch6.addConstraint(Sketcher.Constraint("Coincident", 0, 2, 1, 1))
sketch6.addConstraint(Sketcher.Constraint("Coincident", 1, 2, 2, 1))
sketch6.addConstraint(Sketcher.Constraint("Coincident", 2, 2, 3, 1))
sketch6.addConstraint(Sketcher.Constraint("Coincident", 3, 2, 0, 1))
sketch6.addConstraint(Sketcher.Constraint("Vertical", 0))
sketch6.addConstraint(Sketcher.Constraint("Horizontal", 1))
sketch6.addConstraint(Sketcher.Constraint("Vertical", 2))
sketch6.addConstraint(Sketcher.Constraint("Horizontal", 3))
sketch6.addConstraint(Sketcher.Constraint("DistanceY", 0, 1, 0, 2, Q("2 in")))
sketch6.addConstraint(Sketcher.Constraint("DistanceX", 1, 2, 1, 1, Q("0.25 in")))
sketch6.addConstraint(Sketcher.Constraint("DistanceX", -1, 1, 0, 2, Q("18.0156 in")))
sketch6.addConstraint(Sketcher.Constraint("DistanceY", 0, 2, -1, 1, Q("64.723 mm")))
pocket5 = doc.addObject("PartDesign::Pocket", "Pocket004")
body.addObject(pocket5)
pocket5.Profile = sketch6
pocket5.Length = Q("0.25 in")

# Sketch on XY plane
sketch7 = doc.addObject("Sketcher::SketchObject", "Sketch006")
body.addObject(sketch7)
sketch7.AttachmentSupport = (doc.XY_Plane, [""])
sketch7.MapMode = "FlatFace"
sketch7.AttachmentOffset = App.Placement(Vector(0, 0, 0.25 * 25.4), App.Rotation())
sketch7.addGeometry(Part.Circle(Vector(45, -60, 0), Vector(0, 0, 1), 25), False)
sketch7.addGeometry(Part.Circle(Vector(375, -60, 0), Vector(0, 0, 1), 25), False)
sketch7.addConstraint(Sketcher.Constraint("Equal", 0, 1))
sketch7.addConstraint(Sketcher.Constraint("Horizontal", 0, 3, 1, 3))
sketch7.addConstraint(Sketcher.Constraint("Diameter", 0, Q("2 in")))
sketch7.addConstraint(Sketcher.Constraint("DistanceX", 0, 3, 1, 3, Q("13 in")))
sketch7.addConstraint(Sketcher.Constraint("DistanceX", -1, 1, 0, 3, Q("1.7656 in")))
sketch7.addConstraint(Sketcher.Constraint("DistanceY", 0, 3, -1, 1, Q("60.278 mm")))
pocket6 = doc.addObject("PartDesign::Pocket", "Pocket005")
body.addObject(pocket6)
pocket6.Profile = sketch7
pocket6.Length = Q("1 in")

# Sketch on XY plane
sketch8 = doc.addObject("Sketcher::SketchObject", "Sketch007")
body.addObject(sketch8)
sketch8.AttachmentSupport = (doc.XY_Plane, [""])
sketch8.MapMode = "FlatFace"
sketch8.AttachmentOffset = App.Placement(Vector(0, 0, 0.25 * 25.4), App.Rotation())
sketch8.addGeometry(Part.Circle(Vector(45, -60, 0), Vector(0, 0, 1), 25), False)
sketch8.addGeometry(Part.Circle(Vector(375, -60, 0), Vector(0, 0, 1), 25), False)
sketch8.addConstraint(Sketcher.Constraint("Equal", 0, 1))
sketch8.addConstraint(Sketcher.Constraint("Horizontal", 0, 3, 1, 3))
sketch8.addConstraint(Sketcher.Constraint("Diameter", 0, Q("2 in")))
sketch8.addConstraint(Sketcher.Constraint("DistanceX", 0, 3, 1, 3, Q("13 in")))
sketch8.addConstraint(Sketcher.Constraint("DistanceX", -1, 1, 0, 3, Q("1.7656 in")))
sketch8.addConstraint(Sketcher.Constraint("DistanceY", 0, 3, -1, 1, Q("60.278 mm")))
pad2 = doc.addObject("PartDesign::Pad", "Pad001")
body.addObject(pad2)
pad2.Profile = sketch8
pad2.Length = Q("0.25 in")
pad2.Reversed = True

# Sketch on XY plane
sketch9 = doc.addObject("Sketcher::SketchObject", "Sketch008")
body.addObject(sketch9)
sketch9.AttachmentSupport = (doc.XY_Plane, [""])
sketch9.MapMode = "FlatFace"
sketch9.addGeometry(Part.LineSegment(Vector(439, 22, 0), Vector(439, 16, 0)), False)
sketch9.addGeometry(Part.LineSegment(Vector(439, 16, 0), Vector(388, 16, 0)), False)
sketch9.addGeometry(Part.LineSegment(Vector(388, 16, 0), Vector(388, 22, 0)), False)
sketch9.addGeometry(Part.LineSegment(Vector(388, 22, 0), Vector(439, 22, 0)), False)
sketch9.addGeometry(Part.LineSegment(Vector(337, 22, 0), Vector(337, 16, 0)), False)
sketch9.addGeometry(Part.LineSegment(Vector(337, 16, 0), Vector(286, 16, 0)), False)
sketch9.addGeometry(Part.LineSegment(Vector(286, 16, 0), Vector(286, 22, 0)), False)
sketch9.addGeometry(Part.LineSegment(Vector(286, 22, 0), Vector(337, 22, 0)), False)
sketch9.addGeometry(Part.LineSegment(Vector(235, 22, 0), Vector(235, 16, 0)), False)
sketch9.addGeometry(Part.LineSegment(Vector(235, 16, 0), Vector(185, 16, 0)), False)
sketch9.addGeometry(Part.LineSegment(Vector(185, 16, 0), Vector(185, 22, 0)), False)
sketch9.addGeometry(Part.LineSegment(Vector(185, 22, 0), Vector(235, 22, 0)), False)
sketch9.addGeometry(Part.LineSegment(Vector(134, 22, 0), Vector(134, 16, 0)), False)
sketch9.addGeometry(Part.LineSegment(Vector(134, 16, 0), Vector(83, 16, 0)), False)
sketch9.addGeometry(Part.LineSegment(Vector(83, 16, 0), Vector(83, 22, 0)), False)
sketch9.addGeometry(Part.LineSegment(Vector(83, 22, 0), Vector(134, 22, 0)), False)
sketch9.addGeometry(Part.LineSegment(Vector(32, 22, 0), Vector(32, 16, 0)), False)
sketch9.addGeometry(Part.LineSegment(Vector(32, 16, 0), Vector(-19, 16, 0)), False)
sketch9.addGeometry(Part.LineSegment(Vector(-19, 16, 0), Vector(-19, 22, 0)), False)
sketch9.addGeometry(Part.LineSegment(Vector(-19, 22, 0), Vector(32, 22, 0)), False)
sketch9.addConstraint(Sketcher.Constraint("Coincident", 0, 2, 1, 1))
sketch9.addConstraint(Sketcher.Constraint("Coincident", 1, 2, 2, 1))
sketch9.addConstraint(Sketcher.Constraint("Coincident", 2, 2, 3, 1))
sketch9.addConstraint(Sketcher.Constraint("Coincident", 3, 2, 0, 1))
sketch9.addConstraint(Sketcher.Constraint("Coincident", 4, 2, 5, 1))
sketch9.addConstraint(Sketcher.Constraint("Coincident", 5, 2, 6, 1))
sketch9.addConstraint(Sketcher.Constraint("Coincident", 6, 2, 7, 1))
sketch9.addConstraint(Sketcher.Constraint("Coincident", 7, 2, 4, 1))
sketch9.addConstraint(Sketcher.Constraint("Coincident", 8, 2, 9, 1))
sketch9.addConstraint(Sketcher.Constraint("Coincident", 9, 2, 10, 1))
sketch9.addConstraint(Sketcher.Constraint("Coincident", 10, 2, 11, 1))
sketch9.addConstraint(Sketcher.Constraint("Coincident", 11, 2, 8, 1))
sketch9.addConstraint(Sketcher.Constraint("Coincident", 12, 2, 13, 1))
sketch9.addConstraint(Sketcher.Constraint("Coincident", 13, 2, 14, 1))
sketch9.addConstraint(Sketcher.Constraint("Coincident", 14, 2, 15, 1))
sketch9.addConstraint(Sketcher.Constraint("Coincident", 15, 2, 12, 1))
sketch9.addConstraint(Sketcher.Constraint("Coincident", 16, 2, 17, 1))
sketch9.addConstraint(Sketcher.Constraint("Coincident", 17, 2, 18, 1))
sketch9.addConstraint(Sketcher.Constraint("Coincident", 18, 2, 19, 1))
sketch9.addConstraint(Sketcher.Constraint("Coincident", 19, 2, 16, 1))
sketch9.addConstraint(Sketcher.Constraint("Vertical", 0))
sketch9.addConstraint(Sketcher.Constraint("Horizontal", 1))
sketch9.addConstraint(Sketcher.Constraint("Vertical", 2))
sketch9.addConstraint(Sketcher.Constraint("Horizontal", 3))
sketch9.addConstraint(Sketcher.Constraint("Vertical", 4))
sketch9.addConstraint(Sketcher.Constraint("Horizontal", 5))
sketch9.addConstraint(Sketcher.Constraint("Vertical", 6))
sketch9.addConstraint(Sketcher.Constraint("Horizontal", 7))
sketch9.addConstraint(Sketcher.Constraint("Vertical", 8))
sketch9.addConstraint(Sketcher.Constraint("Horizontal", 9))
sketch9.addConstraint(Sketcher.Constraint("Vertical", 10))
sketch9.addConstraint(Sketcher.Constraint("Horizontal", 11))
sketch9.addConstraint(Sketcher.Constraint("Vertical", 12))
sketch9.addConstraint(Sketcher.Constraint("Horizontal", 13))
sketch9.addConstraint(Sketcher.Constraint("Vertical", 14))
sketch9.addConstraint(Sketcher.Constraint("Horizontal", 15))
sketch9.addConstraint(Sketcher.Constraint("Vertical", 16))
sketch9.addConstraint(Sketcher.Constraint("Horizontal", 17))
sketch9.addConstraint(Sketcher.Constraint("Vertical", 18))
sketch9.addConstraint(Sketcher.Constraint("Horizontal", 19))
sketch9.addConstraint(Sketcher.Constraint("Horizontal", 1, 2, 4, 2))
sketch9.addConstraint(Sketcher.Constraint("Horizontal", 3, 2, 6, 2))
sketch9.addConstraint(Sketcher.Constraint("Horizontal", 5, 2, 8, 2))
sketch9.addConstraint(Sketcher.Constraint("Horizontal", 7, 2, 10, 2))
sketch9.addConstraint(Sketcher.Constraint("Horizontal", 9, 2, 12, 2))
sketch9.addConstraint(Sketcher.Constraint("Horizontal", 11, 2, 14, 2))
sketch9.addConstraint(Sketcher.Constraint("Horizontal", 13, 2, 16, 2))
sketch9.addConstraint(Sketcher.Constraint("Horizontal", 15, 2, 18, 2))
sketch9.addConstraint(Sketcher.Constraint("Equal", 3, 5))
sketch9.addConstraint(Sketcher.Constraint("Equal", 7, 9))
sketch9.addConstraint(Sketcher.Constraint("Equal", 11, 13))
sketch9.addConstraint(Sketcher.Constraint("Equal", 15, 17))
sketch9.addConstraint(Sketcher.Constraint("DistanceX", 1, 2, 1, 1, Q("2 in")))
sketch9.addConstraint(Sketcher.Constraint("DistanceX", 4, 2, 1, 2, Q("2 in")))
sketch9.addConstraint(Sketcher.Constraint("DistanceX", 8, 2, 5, 2, Q("2 in")))
sketch9.addConstraint(Sketcher.Constraint("DistanceX", 12, 2, 9, 2, Q("2 in")))
sketch9.addConstraint(Sketcher.Constraint("DistanceX", 16, 2, 13, 2, Q("2 in")))
sketch9.addConstraint(Sketcher.Constraint("DistanceY", 0, 2, 0, 1, Q("0.25 in")))
sketch9.addConstraint(Sketcher.Constraint("DistanceX", -1, 1, 0, 2, Q("17.2656 in")))
sketch9.addConstraint(Sketcher.Constraint("DistanceY", -1, 1, 0, 2, Q("15.922 mm")))
pocket7 = doc.addObject("PartDesign::Pocket", "Pocket006")
body.addObject(pocket7)
pocket7.Profile = sketch9
pocket7.Length = Q("1 in")
pocket7.Reversed = True

# Sketch on XY plane
sketch10 = doc.addObject("Sketcher::SketchObject", "Sketch009")
body.addObject(sketch10)
sketch10.AttachmentSupport = (doc.XY_Plane, [""])
sketch10.MapMode = "FlatFace"
sketch10.addGeometry(Part.LineSegment(Vector(-19, -304, 0), Vector(-19, -298, 0)), False)
sketch10.addGeometry(Part.LineSegment(Vector(-19, -298, 0), Vector(32, -298, 0)), False)
sketch10.addGeometry(Part.LineSegment(Vector(32, -298, 0), Vector(32, -304, 0)), False)
sketch10.addGeometry(Part.LineSegment(Vector(32, -304, 0), Vector(-19, -304, 0)), False)
sketch10.addGeometry(Part.LineSegment(Vector(388, -298, 0), Vector(439, -298, 0)), False)
sketch10.addGeometry(Part.LineSegment(Vector(439, -298, 0), Vector(439, -304, 0)), False)
sketch10.addGeometry(Part.LineSegment(Vector(439, -304, 0), Vector(388, -304, 0)), False)
sketch10.addGeometry(Part.LineSegment(Vector(388, -304, 0), Vector(388, -298, 0)), False)
sketch10.addGeometry(Part.LineSegment(Vector(83, -304, 0), Vector(83, -298, 0)), False)
sketch10.addGeometry(Part.LineSegment(Vector(83, -298, 0), Vector(134, -298, 0)), False)
sketch10.addGeometry(Part.LineSegment(Vector(134, -298, 0), Vector(134, -304, 0)), False)
sketch10.addGeometry(Part.LineSegment(Vector(134, -304, 0), Vector(83, -304, 0)), False)
sketch10.addGeometry(Part.LineSegment(Vector(286, -298, 0), Vector(337, -298, 0)), False)
sketch10.addGeometry(Part.LineSegment(Vector(337, -298, 0), Vector(337, -304, 0)), False)
sketch10.addGeometry(Part.LineSegment(Vector(337, -304, 0), Vector(286, -304, 0)), False)
sketch10.addGeometry(Part.LineSegment(Vector(286, -304, 0), Vector(286, -298, 0)), False)
sketch10.addGeometry(Part.LineSegment(Vector(185, -304, 0), Vector(185, -298, 0)), False)
sketch10.addGeometry(Part.LineSegment(Vector(185, -298, 0), Vector(235, -298, 0)), False)
sketch10.addGeometry(Part.LineSegment(Vector(235, -298, 0), Vector(235, -304, 0)), False)
sketch10.addGeometry(Part.LineSegment(Vector(235, -304, 0), Vector(185, -304, 0)), False)
sketch10.addConstraint(Sketcher.Constraint("Coincident", 0, 2, 1, 1))
sketch10.addConstraint(Sketcher.Constraint("Coincident", 1, 2, 2, 1))
sketch10.addConstraint(Sketcher.Constraint("Coincident", 2, 2, 3, 1))
sketch10.addConstraint(Sketcher.Constraint("Coincident", 3, 2, 0, 1))
sketch10.addConstraint(Sketcher.Constraint("Coincident", 4, 2, 5, 1))
sketch10.addConstraint(Sketcher.Constraint("Coincident", 5, 2, 6, 1))
sketch10.addConstraint(Sketcher.Constraint("Coincident", 6, 2, 7, 1))
sketch10.addConstraint(Sketcher.Constraint("Coincident", 7, 2, 4, 1))
sketch10.addConstraint(Sketcher.Constraint("Coincident", 8, 2, 9, 1))
sketch10.addConstraint(Sketcher.Constraint("Coincident", 9, 2, 10, 1))
sketch10.addConstraint(Sketcher.Constraint("Coincident", 10, 2, 11, 1))
sketch10.addConstraint(Sketcher.Constraint("Coincident", 11, 2, 8, 1))
sketch10.addConstraint(Sketcher.Constraint("Coincident", 12, 2, 13, 1))
sketch10.addConstraint(Sketcher.Constraint("Coincident", 13, 2, 14, 1))
sketch10.addConstraint(Sketcher.Constraint("Coincident", 14, 2, 15, 1))
sketch10.addConstraint(Sketcher.Constraint("Coincident", 15, 2, 12, 1))
sketch10.addConstraint(Sketcher.Constraint("Coincident", 16, 2, 17, 1))
sketch10.addConstraint(Sketcher.Constraint("Coincident", 17, 2, 18, 1))
sketch10.addConstraint(Sketcher.Constraint("Coincident", 18, 2, 19, 1))
sketch10.addConstraint(Sketcher.Constraint("Coincident", 19, 2, 16, 1))
sketch10.addConstraint(Sketcher.Constraint("Vertical", 0))
sketch10.addConstraint(Sketcher.Constraint("Horizontal", 1))
sketch10.addConstraint(Sketcher.Constraint("Vertical", 2))
sketch10.addConstraint(Sketcher.Constraint("Horizontal", 3))
sketch10.addConstraint(Sketcher.Constraint("Horizontal", 4))
sketch10.addConstraint(Sketcher.Constraint("Vertical", 5))
sketch10.addConstraint(Sketcher.Constraint("Horizontal", 6))
sketch10.addConstraint(Sketcher.Constraint("Vertical", 7))
sketch10.addConstraint(Sketcher.Constraint("Vertical", 8))
sketch10.addConstraint(Sketcher.Constraint("Horizontal", 9))
sketch10.addConstraint(Sketcher.Constraint("Vertical", 10))
sketch10.addConstraint(Sketcher.Constraint("Horizontal", 11))
sketch10.addConstraint(Sketcher.Constraint("Horizontal", 12))
sketch10.addConstraint(Sketcher.Constraint("Vertical", 13))
sketch10.addConstraint(Sketcher.Constraint("Horizontal", 14))
sketch10.addConstraint(Sketcher.Constraint("Vertical", 15))
sketch10.addConstraint(Sketcher.Constraint("Vertical", 16))
sketch10.addConstraint(Sketcher.Constraint("Horizontal", 17))
sketch10.addConstraint(Sketcher.Constraint("Vertical", 18))
sketch10.addConstraint(Sketcher.Constraint("Horizontal", 19))
sketch10.addConstraint(Sketcher.Constraint("Horizontal", 1, 2, 4, 2))
sketch10.addConstraint(Sketcher.Constraint("Horizontal", 3, 2, 5, 2))
sketch10.addConstraint(Sketcher.Constraint("Horizontal", 7, 2, 8, 2))
sketch10.addConstraint(Sketcher.Constraint("Horizontal", 6, 2, 10, 2))
sketch10.addConstraint(Sketcher.Constraint("Horizontal", 9, 2, 12, 2))
sketch10.addConstraint(Sketcher.Constraint("Horizontal", 11, 2, 13, 2))
sketch10.addConstraint(Sketcher.Constraint("Horizontal", 15, 2, 16, 2))
sketch10.addConstraint(Sketcher.Constraint("Horizontal", 14, 2, 18, 2))
sketch10.addConstraint(Sketcher.Constraint("Equal", 3, 4))
sketch10.addConstraint(Sketcher.Constraint("Equal", 6, 9))
sketch10.addConstraint(Sketcher.Constraint("Equal", 11, 12))
sketch10.addConstraint(Sketcher.Constraint("Equal", 14, 17))
sketch10.addConstraint(Sketcher.Constraint("DistanceX", 1, 1, 1, 2, Q("2 in")))
sketch10.addConstraint(Sketcher.Constraint("DistanceX", 1, 2, 4, 2, Q("16 in")))
sketch10.addConstraint(Sketcher.Constraint("DistanceX", 1, 2, 8, 2, Q("2 in")))
sketch10.addConstraint(Sketcher.Constraint("DistanceX", 12, 2, 7, 2, Q("2 in")))
sketch10.addConstraint(Sketcher.Constraint("DistanceX", 9, 2, 16, 2, Q("2 in")))
sketch10.addConstraint(Sketcher.Constraint("DistanceY", 0, 1, 0, 2, Q("0.25 in")))
sketch10.addConstraint(Sketcher.Constraint("DistanceX", 0, 2, -1, 1, Q("0.7344 in")))
sketch10.addConstraint(Sketcher.Constraint("DistanceY", 0, 2, -1, 1, Q("297.768 mm")))
pocket8 = doc.addObject("PartDesign::Pocket", "Pocket007")
body.addObject(pocket8)
pocket8.Profile = sketch10
pocket8.Length = Q("1 in")
pocket8.Reversed = True

# Sketch on XY plane
sketch11 = doc.addObject("Sketcher::SketchObject", "Sketch010")
body.addObject(sketch11)
sketch11.AttachmentSupport = (doc.XY_Plane, [""])
sketch11.MapMode = "FlatFace"
sketch11.addGeometry(Part.LineSegment(Vector(458, -298, 0), Vector(-38, -298, 0)), False)
sketch11.addGeometry(Part.LineSegment(Vector(-38, -298, 0), Vector(-38, 16, 0)), False)
sketch11.addGeometry(Part.LineSegment(Vector(-38, 16, 0), Vector(458, 16, 0)), False)
sketch11.addGeometry(Part.LineSegment(Vector(458, 16, 0), Vector(458, -298, 0)), False)
sketch11.addConstraint(Sketcher.Constraint("Coincident", 0, 2, 1, 1))
sketch11.addConstraint(Sketcher.Constraint("Coincident", 1, 2, 2, 1))
sketch11.addConstraint(Sketcher.Constraint("Coincident", 2, 2, 3, 1))
sketch11.addConstraint(Sketcher.Constraint("Coincident", 3, 2, 0, 1))
sketch11.addConstraint(Sketcher.Constraint("Horizontal", 0))
sketch11.addConstraint(Sketcher.Constraint("Vertical", 1))
sketch11.addConstraint(Sketcher.Constraint("Horizontal", 2))
sketch11.addConstraint(Sketcher.Constraint("Vertical", 3))
sketch11.addConstraint(Sketcher.Constraint("DistanceX", 0, 2, 0, 1, Q("19.5 in")))
sketch11.addConstraint(Sketcher.Constraint("DistanceY", 1, 1, 1, 2, Q("12.35 in")))
sketch11.addConstraint(Sketcher.Constraint("DistanceX", 0, 2, -1, 1, Q("1.4844 in")))
sketch11.addConstraint(Sketcher.Constraint("DistanceY", 0, 2, -1, 1, Q("297.768 mm")))
pad3 = doc.addObject("PartDesign::Pad", "Pad002")
body.addObject(pad3)
pad3.Profile = sketch11
pad3.Length = Q("0.25 in")

# Sketch on XY plane
sketch12 = doc.addObject("Sketcher::SketchObject", "Sketch011")
body.addObject(sketch12)
sketch12.AttachmentSupport = (doc.XY_Plane, [""])
sketch12.MapMode = "FlatFace"
sketch12.addGeometry(Part.LineSegment(Vector(-38, -124, 0), Vector(-38, 16, 0)), False)
sketch12.addGeometry(Part.LineSegment(Vector(-38, 16, 0), Vector(131, 16, 0)), False)
sketch12.addGeometry(Part.LineSegment(Vector(131, 16, 0), Vector(131, -124, 0)), False)
sketch12.addGeometry(Part.LineSegment(Vector(131, -124, 0), Vector(-38, -124, 0)), False)
sketch12.addGeometry(Part.LineSegment(Vector(289, -124, 0), Vector(289, 16, 0)), False)
sketch12.addGeometry(Part.LineSegment(Vector(289, 16, 0), Vector(458, 16, 0)), False)
sketch12.addGeometry(Part.LineSegment(Vector(458, 16, 0), Vector(458, -124, 0)), False)
sketch12.addGeometry(Part.LineSegment(Vector(458, -124, 0), Vector(289, -124, 0)), False)
sketch12.addConstraint(Sketcher.Constraint("Coincident", 0, 2, 1, 1))
sketch12.addConstraint(Sketcher.Constraint("Coincident", 1, 2, 2, 1))
sketch12.addConstraint(Sketcher.Constraint("Coincident", 2, 2, 3, 1))
sketch12.addConstraint(Sketcher.Constraint("Coincident", 3, 2, 0, 1))
sketch12.addConstraint(Sketcher.Constraint("Coincident", 4, 2, 5, 1))
sketch12.addConstraint(Sketcher.Constraint("Coincident", 5, 2, 6, 1))
sketch12.addConstraint(Sketcher.Constraint("Coincident", 6, 2, 7, 1))
sketch12.addConstraint(Sketcher.Constraint("Coincident", 7, 2, 4, 1))
sketch12.addConstraint(Sketcher.Constraint("Vertical", 0))
sketch12.addConstraint(Sketcher.Constraint("Horizontal", 1))
sketch12.addConstraint(Sketcher.Constraint("Vertical", 2))
sketch12.addConstraint(Sketcher.Constraint("Horizontal", 3))
sketch12.addConstraint(Sketcher.Constraint("Vertical", 4))
sketch12.addConstraint(Sketcher.Constraint("Horizontal", 5))
sketch12.addConstraint(Sketcher.Constraint("Vertical", 6))
sketch12.addConstraint(Sketcher.Constraint("Horizontal", 7))
sketch12.addConstraint(Sketcher.Constraint("Horizontal", 1, 2, 4, 2))
sketch12.addConstraint(Sketcher.Constraint("Horizontal", 3, 2, 6, 2))
sketch12.addConstraint(Sketcher.Constraint("Equal", 3, 5))
sketch12.addConstraint(Sketcher.Constraint("DistanceY", 0, 1, 0, 2, Q("5.5 in")))
sketch12.addConstraint(Sketcher.Constraint("DistanceX", 1, 1, 1, 2, Q("6.63 in")))
sketch12.addConstraint(Sketcher.Constraint("DistanceX", 0, 2, 5, 2, Q("19.5 in")))
sketch12.addConstraint(Sketcher.Constraint("DistanceX", 0, 2, -1, 1, Q("1.4844 in")))
sketch12.addConstraint(Sketcher.Constraint("DistanceY", -1, 1, 0, 2, Q("15.922 mm")))
pocket9 = doc.addObject("PartDesign::Pocket", "Pocket008")
body.addObject(pocket9)
pocket9.Profile = sketch12
pocket9.Length = Q("1 in")
pocket9.Reversed = True

# Sketch on XY plane
sketch13 = doc.addObject("Sketcher::SketchObject", "Sketch012")
body.addObject(sketch13)
sketch13.AttachmentSupport = (doc.XY_Plane, [""])
sketch13.MapMode = "FlatFace"
sketch13.addGeometry(Part.LineSegment(Vector(289, -124, 0), Vector(131, -124, 0)), False)
sketch13.addGeometry(Part.LineSegment(Vector(131, -124, 0), Vector(131, 16, 0)), False)
sketch13.addGeometry(Part.LineSegment(Vector(131, 16, 0), Vector(289, 16, 0)), False)
sketch13.addGeometry(Part.LineSegment(Vector(289, 16, 0), Vector(289, -124, 0)), False)
sketch13.addConstraint(Sketcher.Constraint("Coincident", 0, 2, 1, 1))
sketch13.addConstraint(Sketcher.Constraint("Coincident", 1, 2, 2, 1))
sketch13.addConstraint(Sketcher.Constraint("Coincident", 2, 2, 3, 1))
sketch13.addConstraint(Sketcher.Constraint("Coincident", 3, 2, 0, 1))
sketch13.addConstraint(Sketcher.Constraint("Horizontal", 0))
sketch13.addConstraint(Sketcher.Constraint("Vertical", 1))
sketch13.addConstraint(Sketcher.Constraint("Horizontal", 2))
sketch13.addConstraint(Sketcher.Constraint("Vertical", 3))
sketch13.addConstraint(Sketcher.Constraint("DistanceY", 1, 1, 1, 2, Q("5.5 in")))
sketch13.addConstraint(Sketcher.Constraint("DistanceX", 0, 2, 0, 1, Q("6.24 in")))
sketch13.addConstraint(Sketcher.Constraint("DistanceX", -1, 1, 0, 2, Q("5.1456 in")))
sketch13.addConstraint(Sketcher.Constraint("DistanceY", 0, 2, -1, 1, Q("123.778 mm")))
pocket10 = doc.addObject("PartDesign::Pocket", "Pocket009")
body.addObject(pocket10)
pocket10.Profile = sketch13
pocket10.Length = Q("1 in")
pocket10.Reversed = True

doc.recompute()
